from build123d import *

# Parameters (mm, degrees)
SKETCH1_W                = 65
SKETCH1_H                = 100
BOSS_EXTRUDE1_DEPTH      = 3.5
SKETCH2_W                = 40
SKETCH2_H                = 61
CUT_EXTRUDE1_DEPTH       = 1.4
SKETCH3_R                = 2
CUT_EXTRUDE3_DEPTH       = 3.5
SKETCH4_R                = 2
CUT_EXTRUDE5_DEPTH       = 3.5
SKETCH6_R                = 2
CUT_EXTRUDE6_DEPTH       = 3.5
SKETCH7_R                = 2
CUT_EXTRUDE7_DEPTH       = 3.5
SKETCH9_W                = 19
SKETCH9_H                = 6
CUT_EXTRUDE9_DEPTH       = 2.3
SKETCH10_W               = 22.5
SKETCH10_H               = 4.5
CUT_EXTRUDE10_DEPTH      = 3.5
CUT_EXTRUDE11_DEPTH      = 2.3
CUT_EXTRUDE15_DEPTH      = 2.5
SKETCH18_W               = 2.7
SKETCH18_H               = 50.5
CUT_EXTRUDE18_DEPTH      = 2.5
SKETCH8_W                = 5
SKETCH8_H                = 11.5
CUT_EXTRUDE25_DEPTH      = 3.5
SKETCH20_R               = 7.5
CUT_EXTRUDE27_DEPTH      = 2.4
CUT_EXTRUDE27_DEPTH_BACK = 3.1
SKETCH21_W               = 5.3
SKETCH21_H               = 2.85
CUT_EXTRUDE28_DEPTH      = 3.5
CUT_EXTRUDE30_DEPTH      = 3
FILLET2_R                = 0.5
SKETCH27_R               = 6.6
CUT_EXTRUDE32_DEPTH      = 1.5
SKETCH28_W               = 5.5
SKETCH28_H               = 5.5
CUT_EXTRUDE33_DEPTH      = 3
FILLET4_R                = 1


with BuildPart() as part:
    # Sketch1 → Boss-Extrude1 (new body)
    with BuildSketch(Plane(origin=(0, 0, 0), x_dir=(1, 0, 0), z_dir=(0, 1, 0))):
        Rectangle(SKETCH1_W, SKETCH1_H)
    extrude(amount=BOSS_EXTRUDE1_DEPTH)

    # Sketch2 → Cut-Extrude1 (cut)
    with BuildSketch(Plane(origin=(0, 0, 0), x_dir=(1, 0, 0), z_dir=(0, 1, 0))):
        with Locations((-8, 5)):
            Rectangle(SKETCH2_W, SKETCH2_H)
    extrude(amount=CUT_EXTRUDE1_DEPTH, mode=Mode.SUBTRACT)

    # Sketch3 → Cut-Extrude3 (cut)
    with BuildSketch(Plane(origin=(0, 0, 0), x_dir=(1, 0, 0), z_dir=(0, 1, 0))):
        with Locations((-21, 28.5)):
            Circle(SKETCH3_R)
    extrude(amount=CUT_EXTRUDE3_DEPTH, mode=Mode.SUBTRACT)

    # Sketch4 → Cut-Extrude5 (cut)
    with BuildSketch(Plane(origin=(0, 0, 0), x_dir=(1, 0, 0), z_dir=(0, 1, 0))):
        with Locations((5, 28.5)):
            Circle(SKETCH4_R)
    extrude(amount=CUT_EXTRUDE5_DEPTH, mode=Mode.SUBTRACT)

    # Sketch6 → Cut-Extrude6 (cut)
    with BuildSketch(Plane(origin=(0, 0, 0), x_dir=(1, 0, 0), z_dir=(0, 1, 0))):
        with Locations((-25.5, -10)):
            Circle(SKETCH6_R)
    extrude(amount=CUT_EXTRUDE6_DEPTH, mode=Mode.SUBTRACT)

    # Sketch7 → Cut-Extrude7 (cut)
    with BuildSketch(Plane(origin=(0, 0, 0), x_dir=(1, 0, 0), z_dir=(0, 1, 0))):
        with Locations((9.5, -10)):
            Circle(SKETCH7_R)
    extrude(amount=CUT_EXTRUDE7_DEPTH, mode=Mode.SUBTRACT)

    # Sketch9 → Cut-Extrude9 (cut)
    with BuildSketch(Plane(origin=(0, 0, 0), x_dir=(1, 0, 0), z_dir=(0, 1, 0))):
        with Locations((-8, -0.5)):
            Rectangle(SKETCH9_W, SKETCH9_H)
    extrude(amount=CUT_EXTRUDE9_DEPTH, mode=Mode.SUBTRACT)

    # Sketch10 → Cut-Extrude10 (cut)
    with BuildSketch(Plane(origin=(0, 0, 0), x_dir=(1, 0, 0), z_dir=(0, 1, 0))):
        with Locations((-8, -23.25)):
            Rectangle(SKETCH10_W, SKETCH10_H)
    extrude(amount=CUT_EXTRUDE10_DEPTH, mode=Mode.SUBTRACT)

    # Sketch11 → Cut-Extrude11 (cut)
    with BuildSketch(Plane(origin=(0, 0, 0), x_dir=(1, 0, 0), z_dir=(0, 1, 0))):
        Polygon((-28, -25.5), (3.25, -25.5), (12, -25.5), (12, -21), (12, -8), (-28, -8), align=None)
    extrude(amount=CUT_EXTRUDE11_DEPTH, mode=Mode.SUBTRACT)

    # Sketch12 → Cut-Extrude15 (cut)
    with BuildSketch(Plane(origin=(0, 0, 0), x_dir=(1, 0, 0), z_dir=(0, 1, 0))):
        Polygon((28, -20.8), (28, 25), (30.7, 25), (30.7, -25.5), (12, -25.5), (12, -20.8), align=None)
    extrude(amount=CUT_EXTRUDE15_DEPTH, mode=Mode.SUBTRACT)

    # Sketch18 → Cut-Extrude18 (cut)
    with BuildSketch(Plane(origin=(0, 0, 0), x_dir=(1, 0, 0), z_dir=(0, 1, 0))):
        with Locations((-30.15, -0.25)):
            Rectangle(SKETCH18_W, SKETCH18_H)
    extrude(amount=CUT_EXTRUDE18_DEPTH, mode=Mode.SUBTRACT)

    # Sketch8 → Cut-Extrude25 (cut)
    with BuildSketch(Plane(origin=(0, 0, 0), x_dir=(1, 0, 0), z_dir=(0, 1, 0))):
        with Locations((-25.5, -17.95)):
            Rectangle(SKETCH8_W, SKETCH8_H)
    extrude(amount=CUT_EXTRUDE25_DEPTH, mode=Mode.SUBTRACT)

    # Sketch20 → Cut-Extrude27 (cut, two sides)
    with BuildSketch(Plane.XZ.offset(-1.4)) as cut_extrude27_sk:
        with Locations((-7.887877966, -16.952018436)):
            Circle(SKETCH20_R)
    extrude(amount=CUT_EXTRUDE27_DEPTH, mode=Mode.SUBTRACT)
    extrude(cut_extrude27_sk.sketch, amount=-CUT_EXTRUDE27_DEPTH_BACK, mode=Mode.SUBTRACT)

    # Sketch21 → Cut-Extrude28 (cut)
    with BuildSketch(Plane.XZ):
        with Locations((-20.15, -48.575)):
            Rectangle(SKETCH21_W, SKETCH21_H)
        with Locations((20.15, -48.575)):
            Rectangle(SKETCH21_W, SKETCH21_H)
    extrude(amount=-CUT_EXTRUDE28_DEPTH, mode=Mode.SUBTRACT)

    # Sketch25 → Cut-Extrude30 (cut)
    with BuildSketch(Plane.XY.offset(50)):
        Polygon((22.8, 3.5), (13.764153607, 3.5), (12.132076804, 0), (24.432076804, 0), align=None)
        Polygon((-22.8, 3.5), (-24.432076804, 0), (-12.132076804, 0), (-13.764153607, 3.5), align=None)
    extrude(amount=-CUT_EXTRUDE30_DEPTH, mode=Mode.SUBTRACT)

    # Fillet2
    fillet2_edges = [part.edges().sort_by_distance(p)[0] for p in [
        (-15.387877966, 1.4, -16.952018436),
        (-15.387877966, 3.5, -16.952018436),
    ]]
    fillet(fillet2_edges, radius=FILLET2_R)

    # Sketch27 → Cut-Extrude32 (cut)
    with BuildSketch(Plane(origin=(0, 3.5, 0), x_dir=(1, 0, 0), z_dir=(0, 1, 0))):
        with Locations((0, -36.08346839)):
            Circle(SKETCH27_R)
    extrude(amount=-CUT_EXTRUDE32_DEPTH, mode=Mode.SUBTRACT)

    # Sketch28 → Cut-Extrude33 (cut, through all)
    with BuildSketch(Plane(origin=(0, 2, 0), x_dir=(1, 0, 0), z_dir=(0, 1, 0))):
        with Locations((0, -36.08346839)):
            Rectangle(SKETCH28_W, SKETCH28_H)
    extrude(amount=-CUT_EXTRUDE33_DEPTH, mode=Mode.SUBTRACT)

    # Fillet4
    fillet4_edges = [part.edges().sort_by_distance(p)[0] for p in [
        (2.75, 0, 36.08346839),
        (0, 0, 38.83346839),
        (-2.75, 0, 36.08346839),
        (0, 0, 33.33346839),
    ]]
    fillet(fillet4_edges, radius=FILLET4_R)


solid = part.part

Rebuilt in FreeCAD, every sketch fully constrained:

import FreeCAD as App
import Part
import Sketcher
Q = App.Units.Quantity


def edges_at(feature, points):
    """Names of the edges that pass closest to the given points."""
    edges = feature.Shape.Edges
    near = lambda p: min(range(len(edges)), key=lambda i: edges[i].distToShape(Part.Vertex(*p))[0])
    return sorted({f"Edge{near(p) + 1}" for p in points})

doc = App.newDocument("Part")
params = doc.addObject("Spreadsheet::Sheet", "Params")
for row, (alias, value) in enumerate([
    ("sketch1_width", "65 mm"),
    ("sketch1_height", "100 mm"),
    ("pad1_length", "3.5 mm"),
    ("sketch2_width", "40 mm"),
    ("sketch2_height", "61 mm"),
    ("pocket1_length", "1.4 mm"),
    ("sketch3_diameter", "4 mm"),
    ("pocket2_length", "3.5 mm"),
    ("sketch4_diameter", "4 mm"),
    ("pocket3_length", "3.5 mm"),
    ("sketch5_diameter", "4 mm"),
    ("pocket4_length", "3.5 mm"),
    ("sketch6_diameter", "4 mm"),
    ("pocket5_length", "3.5 mm"),
    ("sketch7_width", "19 mm"),
    ("sketch7_height", "6 mm"),
    ("pocket6_length", "2.3 mm"),
    ("sketch8_width", "22.5 mm"),
    ("sketch8_height", "4.5 mm"),
    ("pocket7_length", "3.5 mm"),
    ("sketch9_width", "40 mm"),
    ("sketch9_height", "17.5 mm"),
    ("pocket8_length", "2.3 mm"),
    ("sketch10_width", "16 mm"),
    ("sketch10_width2", "18.7 mm"),
    ("sketch10_height", "45.8 mm"),
    ("sketch10_height2", "4.7 mm"),
    ("pocket9_length", "2.5 mm"),
    ("sketch11_width", "2.7 mm"),
    ("sketch11_height", "50.5 mm"),
    ("pocket10_length", "2.5 mm"),
    ("sketch12_width", "5 mm"),
    ("sketch12_height", "11.5 mm"),
    ("pocket11_length", "3.5 mm"),
    ("sketch13_diameter", "15 mm"),
    ("sketch14_width", "5.3 mm"),
    ("sketch14_height", "2.85 mm"),
    ("pocket13_length", "3.5 mm"),
    ("sketch15_width", "12.3 mm"),
    ("pocket14_length", "3 mm"),
    ("fillet_radius", "0.5 mm"),
    ("sketch16_diameter", "13.2 mm"),
    ("pocket15_length", "1.5 mm"),
    ("sketch17_width", "5.5 mm"),
    ("fillet2_radius", "1 mm"),
], start=1):
    params.set(f"A{row}", alias)
    params.set(f"B{row}", "=" + value)
    params.setAlias(f"B{row}", alias)

body = doc.addObject("PartDesign::Body", "Body")

sketch1 = doc.addObject("Sketcher::SketchObject", "Sketch")
body.addObject(sketch1)
sketch1.AttachmentSupport = (doc.XZ_Plane, [""])
sketch1.MapMode = "FlatFace"
sketch1.addGeometry([
    Part.LineSegment(App.Vector(-32.5, -50, 0), App.Vector(-32.5, 50, 0)),
    Part.LineSegment(App.Vector(-32.5, 50, 0), App.Vector(32.5, 50, 0)),
    Part.LineSegment(App.Vector(32.5, 50, 0), App.Vector(32.5, -50, 0)),
    Part.LineSegment(App.Vector(32.5, -50, 0), App.Vector(-32.5, -50, 0)),
], False)
sketch1.addConstraint([
    Sketcher.Constraint("Coincident", 0, 2, 1, 1),
    Sketcher.Constraint("Coincident", 1, 2, 2, 1),
    Sketcher.Constraint("Coincident", 2, 2, 3, 1),
    Sketcher.Constraint("Coincident", 3, 2, 0, 1),
    Sketcher.Constraint("Vertical", 0),
    Sketcher.Constraint("Horizontal", 1),
    Sketcher.Constraint("Vertical", 2),
    Sketcher.Constraint("Horizontal", 3),
    Sketcher.Constraint("Symmetric", 0, 2, 2, 2, -1, 1),
    Sketcher.Constraint("DistanceX", 1, 1, 1, 2, 65.0),
    Sketcher.Constraint("DistanceY", 0, 1, 0, 2, 100.0),
])
sketch1.setExpression("Constraints[9]", "Params.sketch1_width")
sketch1.setExpression("Constraints[10]", "Params.sketch1_height")
pad1 = doc.addObject("PartDesign::Pad", "Pad")
body.addObject(pad1)
pad1.Profile = sketch1
pad1.setExpression("Length", "Params.pad1_length")
pad1.Reversed = True

sketch2 = doc.addObject("Sketcher::SketchObject", "Sketch001")
body.addObject(sketch2)
sketch2.AttachmentSupport = (doc.XZ_Plane, [""])
sketch2.MapMode = "FlatFace"
sketch2.addGeometry([
    Part.LineSegment(App.Vector(-28, -35.5, 0), App.Vector(-28, 25.5, 0)),
    Part.LineSegment(App.Vector(-28, 25.5, 0), App.Vector(12, 25.5, 0)),
    Part.LineSegment(App.Vector(12, 25.5, 0), App.Vector(12, -35.5, 0)),
    Part.LineSegment(App.Vector(12, -35.5, 0), App.Vector(-28, -35.5, 0)),
], False)
sketch2.addConstraint([
    Sketcher.Constraint("Coincident", 0, 2, 1, 1),
    Sketcher.Constraint("Coincident", 1, 2, 2, 1),
    Sketcher.Constraint("Coincident", 2, 2, 3, 1),
    Sketcher.Constraint("Coincident", 3, 2, 0, 1),
    Sketcher.Constraint("Vertical", 0),
    Sketcher.Constraint("Horizontal", 1),
    Sketcher.Constraint("Vertical", 2),
    Sketcher.Constraint("Horizontal", 3),
    Sketcher.Constraint("DistanceX", 1, 1, 1, 2, 40.0),
    Sketcher.Constraint("DistanceY", 0, 1, 0, 2, 61.0),
    Sketcher.Constraint("DistanceX", 0, 2, -1, 1, 28.0),
    Sketcher.Constraint("DistanceY", -1, 1, 0, 2, 25.5),
])
sketch2.setExpression("Constraints[8]", "Params.sketch2_width")
sketch2.setExpression("Constraints[9]", "Params.sketch2_height")
pocket1 = doc.addObject("PartDesign::Pocket", "Pocket")
body.addObject(pocket1)
pocket1.Profile = sketch2
pocket1.setExpression("Length", "Params.pocket1_length")

sketch3 = doc.addObject("Sketcher::SketchObject", "Sketch002")
body.addObject(sketch3)
sketch3.AttachmentSupport = (doc.XZ_Plane, [""])
sketch3.MapMode = "FlatFace"
sketch3.addGeometry(Part.Circle(App.Vector(-21, -28.5, 0), App.Vector(0, 0, 1), 2), False)
sketch3.addConstraint([
    Sketcher.Constraint("Diameter", 0, 4.0),
    Sketcher.Constraint("DistanceX", 0, 3, -1, 1, 21.0),
    Sketcher.Constraint("DistanceY", 0, 3, -1, 1, 28.5),
])
sketch3.setExpression("Constraints[0]", "Params.sketch3_diameter")
pocket2 = doc.addObject("PartDesign::Pocket", "Pocket001")
body.addObject(pocket2)
pocket2.Profile = sketch3
pocket2.setExpression("Length", "Params.pocket2_length")

sketch4 = doc.addObject("Sketcher::SketchObject", "Sketch003")
body.addObject(sketch4)
sketch4.AttachmentSupport = (doc.XZ_Plane, [""])
sketch4.MapMode = "FlatFace"
sketch4.addGeometry(Part.Circle(App.Vector(5, -28.5, 0), App.Vector(0, 0, 1), 2), False)
sketch4.addConstraint([
    Sketcher.Constraint("Diameter", 0, 4.0),
    Sketcher.Constraint("DistanceX", -1, 1, 0, 3, 5.0),
    Sketcher.Constraint("DistanceY", 0, 3, -1, 1, 28.5),
])
sketch4.setExpression("Constraints[0]", "Params.sketch4_diameter")
pocket3 = doc.addObject("PartDesign::Pocket", "Pocket002")
body.addObject(pocket3)
pocket3.Profile = sketch4
pocket3.setExpression("Length", "Params.pocket3_length")

sketch5 = doc.addObject("Sketcher::SketchObject", "Sketch004")
body.addObject(sketch5)
sketch5.AttachmentSupport = (doc.XZ_Plane, [""])
sketch5.MapMode = "FlatFace"
sketch5.addGeometry(Part.Circle(App.Vector(-25.5, 10, 0), App.Vector(0, 0, 1), 2), False)
sketch5.addConstraint([
    Sketcher.Constraint("Diameter", 0, 4.0),
    Sketcher.Constraint("DistanceY", -1, 1, 0, 3, 10.0),
    Sketcher.Constraint("DistanceX", 0, 3, -1, 1, 25.5),
])
sketch5.setExpression("Constraints[0]", "Params.sketch5_diameter")
pocket4 = doc.addObject("PartDesign::Pocket", "Pocket003")
body.addObject(pocket4)
pocket4.Profile = sketch5
pocket4.setExpression("Length", "Params.pocket4_length")

sketch6 = doc.addObject("Sketcher::SketchObject", "Sketch005")
body.addObject(sketch6)
sketch6.AttachmentSupport = (doc.XZ_Plane, [""])
sketch6.MapMode = "FlatFace"
sketch6.addGeometry(Part.Circle(App.Vector(9.5, 10, 0), App.Vector(0, 0, 1), 2), False)
sketch6.addConstraint([
    Sketcher.Constraint("Diameter", 0, 4.0),
    Sketcher.Constraint("DistanceY", -1, 1, 0, 3, 10.0),
    Sketcher.Constraint("DistanceX", -1, 1, 0, 3, 9.5),
])
sketch6.setExpression("Constraints[0]", "Params.sketch6_diameter")
pocket5 = doc.addObject("PartDesign::Pocket", "Pocket004")
body.addObject(pocket5)
pocket5.Profile = sketch6
pocket5.setExpression("Length", "Params.pocket5_length")

sketch7 = doc.addObject("Sketcher::SketchObject", "Sketch006")
body.addObject(sketch7)
sketch7.AttachmentSupport = (doc.XZ_Plane, [""])
sketch7.MapMode = "FlatFace"
sketch7.addGeometry([
    Part.LineSegment(App.Vector(-17.5, -2.5, 0), App.Vector(-17.5, 3.5, 0)),
    Part.LineSegment(App.Vector(-17.5, 3.5, 0), App.Vector(1.5, 3.5, 0)),
    Part.LineSegment(App.Vector(1.5, 3.5, 0), App.Vector(1.5, -2.5, 0)),
    Part.LineSegment(App.Vector(1.5, -2.5, 0), App.Vector(-17.5, -2.5, 0)),
], False)
sketch7.addConstraint([
    Sketcher.Constraint("Coincident", 0, 2, 1, 1),
    Sketcher.Constraint("Coincident", 1, 2, 2, 1),
    Sketcher.Constraint("Coincident", 2, 2, 3, 1),
    Sketcher.Constraint("Coincident", 3, 2, 0, 1),
    Sketcher.Constraint("Vertical", 0),
    Sketcher.Constraint("Horizontal", 1),
    Sketcher.Constraint("Vertical", 2),
    Sketcher.Constraint("Horizontal", 3),
    Sketcher.Constraint("DistanceX", 1, 1, 1, 2, 19.0),
    Sketcher.Constraint("DistanceY", 0, 1, 0, 2, 6.0),
    Sketcher.Constraint("DistanceX", 0, 2, -1, 1, 17.5),
    Sketcher.Constraint("DistanceY", -1, 1, 0, 2, 3.5),
])
sketch7.setExpression("Constraints[8]", "Params.sketch7_width")
sketch7.setExpression("Constraints[9]", "Params.sketch7_height")
pocket6 = doc.addObject("PartDesign::Pocket", "Pocket005")
body.addObject(pocket6)
pocket6.Profile = sketch7
pocket6.setExpression("Length", "Params.pocket6_length")

sketch8 = doc.addObject("Sketcher::SketchObject", "Sketch007")
body.addObject(sketch8)
sketch8.AttachmentSupport = (doc.XZ_Plane, [""])
sketch8.MapMode = "FlatFace"
sketch8.addGeometry([
    Part.LineSegment(App.Vector(-19.25, 21, 0), App.Vector(-19.25, 25.5, 0)),
    Part.LineSegment(App.Vector(-19.25, 25.5, 0), App.Vector(3.25, 25.5, 0)),
    Part.LineSegment(App.Vector(3.25, 25.5, 0), App.Vector(3.25, 21, 0)),
    Part.LineSegment(App.Vector(3.25, 21, 0), App.Vector(-19.25, 21, 0)),
], False)
sketch8.addConstraint([
    Sketcher.Constraint("Coincident", 0, 2, 1, 1),
    Sketcher.Constraint("Coincident", 1, 2, 2, 1),
    Sketcher.Constraint("Coincident", 2, 2, 3, 1),
    Sketcher.Constraint("Coincident", 3, 2, 0, 1),
    Sketcher.Constraint("Vertical", 0),
    Sketcher.Constraint("Horizontal", 1),
    Sketcher.Constraint("Vertical", 2),
    Sketcher.Constraint("Horizontal", 3),
    Sketcher.Constraint("DistanceX", 1, 1, 1, 2, 22.5),
    Sketcher.Constraint("DistanceY", 0, 1, 0, 2, 4.5),
    Sketcher.Constraint("DistanceY", -1, 1, 2, 2, 21.0),
    Sketcher.Constraint("DistanceX", 0, 2, -1, 1, 19.25),
])
sketch8.setExpression("Constraints[8]", "Params.sketch8_width")
sketch8.setExpression("Constraints[9]", "Params.sketch8_height")
pocket7 = doc.addObject("PartDesign::Pocket", "Pocket006")
body.addObject(pocket7)
pocket7.Profile = sketch8
pocket7.setExpression("Length", "Params.pocket7_length")

sketch9 = doc.addObject("Sketcher::SketchObject", "Sketch008")
body.addObject(sketch9)
sketch9.AttachmentSupport = (doc.XZ_Plane, [""])
sketch9.MapMode = "FlatFace"
sketch9.addGeometry([
    Part.LineSegment(App.Vector(-28, 25.5, 0), App.Vector(12, 25.5, 0)),
    Part.LineSegment(App.Vector(12, 25.5, 0), App.Vector(12, 8, 0)),
    Part.LineSegment(App.Vector(12, 8, 0), App.Vector(-28, 8, 0)),
    Part.LineSegment(App.Vector(-28, 8, 0), App.Vector(-28, 25.5, 0)),
], False)
sketch9.addConstraint([
    Sketcher.Constraint("Coincident", 0, 2, 1, 1),
    Sketcher.Constraint("Coincident", 1, 2, 2, 1),
    Sketcher.Constraint("Coincident", 2, 2, 3, 1),
    Sketcher.Constraint("Coincident", 3, 2, 0, 1),
    Sketcher.Constraint("Horizontal", 0),
    Sketcher.Constraint("Vertical", 1),
    Sketcher.Constraint("Horizontal", 2),
    Sketcher.Constraint("Vertical", 3),
    Sketcher.Constraint("DistanceX", 0, 1, 0, 2, 40.0),
    Sketcher.Constraint("DistanceY", 1, 2, 1, 1, 17.5),
    Sketcher.Constraint("DistanceX", -1, 1, 0, 2, 12.0),
    Sketcher.Constraint("DistanceY", -1, 1, 1, 2, 8.0),
])
sketch9.setExpression("Constraints[8]", "Params.sketch9_width")
sketch9.setExpression("Constraints[9]", "Params.sketch9_height")
pocket8 = doc.addObject("PartDesign::Pocket", "Pocket007")
body.addObject(pocket8)
pocket8.Profile = sketch9
pocket8.setExpression("Length", "Params.pocket8_length")

sketch10 = doc.addObject("Sketcher::SketchObject", "Sketch009")
body.addObject(sketch10)
sketch10.AttachmentSupport = (doc.XZ_Plane, [""])
sketch10.MapMode = "FlatFace"
sketch10.addGeometry([
    Part.LineSegment(App.Vector(28, -25, 0), App.Vector(28, 20.8, 0)),
    Part.LineSegment(App.Vector(28, 20.8, 0), App.Vector(12, 20.8, 0)),
    Part.LineSegment(App.Vector(12, 20.8, 0), App.Vector(12, 25.5, 0)),
    Part.LineSegment(App.Vector(12, 25.5, 0), App.Vector(30.7, 25.5, 0)),
    Part.LineSegment(App.Vector(30.7, 25.5, 0), App.Vector(30.7, -25, 0)),
    Part.LineSegment(App.Vector(30.7, -25, 0), App.Vector(28, -25, 0)),
], False)
sketch10.addConstraint([
    Sketcher.Constraint("Coincident", 0, 2, 1, 1),
    Sketcher.Constraint("Coincident", 1, 2, 2, 1),
    Sketcher.Constraint("Coincident", 2, 2, 3, 1),
    Sketcher.Constraint("Coincident", 3, 2, 4, 1),
    Sketcher.Constraint("Coincident", 4, 2, 5, 1),
    Sketcher.Constraint("Coincident", 5, 2, 0, 1),
    Sketcher.Constraint("Vertical", 0),
    Sketcher.Constraint("Horizontal", 1),
    Sketcher.Constraint("Vertical", 2),
    Sketcher.Constraint("Horizontal", 3),
    Sketcher.Constraint("Vertical", 4),
    Sketcher.Constraint("Horizontal", 5),
    Sketcher.Constraint("DistanceX", 1, 2, 1, 1, 16.0),
    Sketcher.Constraint("DistanceX", 3, 1, 3, 2, 18.7),
    Sketcher.Constraint("DistanceY", 0, 1, 0, 2, 45.8),
    Sketcher.Constraint("DistanceY", 2, 1, 2, 2, 4.7),
    Sketcher.Constraint("DistanceX", -1, 1, 0, 2, 28.0),
    Sketcher.Constraint("DistanceY", 4, 2, -1, 1, 25.0),
])
sketch10.setExpression("Constraints[12]", "Params.sketch10_width")
sketch10.setExpression("Constraints[13]", "Params.sketch10_width2")
sketch10.setExpression("Constraints[14]", "Params.sketch10_height")
sketch10.setExpression("Constraints[15]", "Params.sketch10_height2")
pocket9 = doc.addObject("PartDesign::Pocket", "Pocket008")
body.addObject(pocket9)
pocket9.Profile = sketch10
pocket9.setExpression("Length", "Params.pocket9_length")

sketch11 = doc.addObject("Sketcher::SketchObject", "Sketch010")
body.addObject(sketch11)
sketch11.AttachmentSupport = (doc.XZ_Plane, [""])
sketch11.MapMode = "FlatFace"
sketch11.addGeometry([
    Part.LineSegment(App.Vector(-31.5, -25, 0), App.Vector(-31.5, 25.5, 0)),
    Part.LineSegment(App.Vector(-31.5, 25.5, 0), App.Vector(-28.8, 25.5, 0)),
    Part.LineSegment(App.Vector(-28.8, 25.5, 0), App.Vector(-28.8, -25, 0)),
    Part.LineSegment(App.Vector(-28.8, -25, 0), App.Vector(-31.5, -25, 0)),
], False)
sketch11.addConstraint([
    Sketcher.Constraint("Coincident", 0, 2, 1, 1),
    Sketcher.Constraint("Coincident", 1, 2, 2, 1),
    Sketcher.Constraint("Coincident", 2, 2, 3, 1),
    Sketcher.Constraint("Coincident", 3, 2, 0, 1),
    Sketcher.Constraint("Vertical", 0),
    Sketcher.Constraint("Horizontal", 1),
    Sketcher.Constraint("Vertical", 2),
    Sketcher.Constraint("Horizontal", 3),
    Sketcher.Constraint("DistanceX", 1, 1, 1, 2, 2.7),
    Sketcher.Constraint("DistanceY", 0, 1, 0, 2, 50.5),
    Sketcher.Constraint("DistanceY", 2, 2, -1, 1, 25.0),
    Sketcher.Constraint("DistanceX", 0, 2, -1, 1, 31.5),
])
sketch11.setExpression("Constraints[8]", "Params.sketch11_width")
sketch11.setExpression("Constraints[9]", "Params.sketch11_height")
pocket10 = doc.addObject("PartDesign::Pocket", "Pocket009")
body.addObject(pocket10)
pocket10.Profile = sketch11
pocket10.setExpression("Length", "Params.pocket10_length")

sketch12 = doc.addObject("Sketcher::SketchObject", "Sketch011")
body.addObject(sketch12)
sketch12.AttachmentSupport = (doc.XZ_Plane, [""])
sketch12.MapMode = "FlatFace"
sketch12.addGeometry([
    Part.LineSegment(App.Vector(-28, 12.2, 0), App.Vector(-28, 23.7, 0)),
    Part.LineSegment(App.Vector(-28, 23.7, 0), App.Vector(-23, 23.7, 0)),
    Part.LineSegment(App.Vector(-23, 23.7, 0), App.Vector(-23, 12.2, 0)),
    Part.LineSegment(App.Vector(-23, 12.2, 0), App.Vector(-28, 12.2, 0)),
], False)
sketch12.addConstraint([
    Sketcher.Constraint("Coincident", 0, 2, 1, 1),
    Sketcher.Constraint("Coincident", 1, 2, 2, 1),
    Sketcher.Constraint("Coincident", 2, 2, 3, 1),
    Sketcher.Constraint("Coincident", 3, 2, 0, 1),
    Sketcher.Constraint("Vertical", 0),
    Sketcher.Constraint("Horizontal", 1),
    Sketcher.Constraint("Vertical", 2),
    Sketcher.Constraint("Horizontal", 3),
    Sketcher.Constraint("DistanceX", 1, 1, 1, 2, 5.0),
    Sketcher.Constraint("DistanceY", 0, 1, 0, 2, 11.5),
    Sketcher.Constraint("DistanceX", 0, 2, -1, 1, 28.0),
    Sketcher.Constraint("DistanceY", -1, 1, 0, 2, 23.7),
])
sketch12.setExpression("Constraints[8]", "Params.sketch12_width")
sketch12.setExpression("Constraints[9]", "Params.sketch12_height")
pocket11 = doc.addObject("PartDesign::Pocket", "Pocket010")
body.addObject(pocket11)
pocket11.Profile = sketch12
pocket11.setExpression("Length", "Params.pocket11_length")

sketch13 = doc.addObject("Sketcher::SketchObject", "Sketch012")
body.addObject(sketch13)
sketch13.AttachmentSupport = (doc.XZ_Plane, [""])
sketch13.MapMode = "FlatFace"
sketch13.AttachmentOffset = App.Placement(App.Vector(0, 0, -1.4), App.Rotation())
sketch13.addGeometry(Part.Circle(App.Vector(-7.887878, -16.952018, 0), App.Vector(0, 0, 1), 7.5), False)
sketch13.addConstraint([
    Sketcher.Constraint("Diameter", 0, 15.0),
    Sketcher.Constraint("DistanceY", 0, 3, -1, 1, 16.952018),
    Sketcher.Constraint("DistanceX", 0, 3, -1, 1, 7.887878),
])
sketch13.setExpression("Constraints[0]", "Params.sketch13_diameter")
pocket12 = doc.addObject("PartDesign::Pocket", "Pocket011")
body.addObject(pocket12)
pocket12.Profile = sketch13
pocket12.Type = "ThroughAll"
pocket12.Midplane = True

sketch14 = doc.addObject("Sketcher::SketchObject", "Sketch013")
body.addObject(sketch14)
sketch14.AttachmentSupport = (doc.XZ_Plane, [""])
sketch14.MapMode = "FlatFace"
sketch14.addGeometry([
    Part.LineSegment(App.Vector(-22.8, -47.15, 0), App.Vector(-22.8, -50, 0)),
    Part.LineSegment(App.Vector(-22.8, -50, 0), App.Vector(-17.5, -50, 0)),
    Part.LineSegment(App.Vector(-17.5, -50, 0), App.Vector(-17.5, -47.15, 0)),
    Part.LineSegment(App.Vector(-17.5, -47.15, 0), App.Vector(-22.8, -47.15, 0)),
    Part.LineSegment(App.Vector(17.5, -47.15, 0), App.Vector(17.5, -50, 0)),
    Part.LineSegment(App.Vector(17.5, -50, 0), App.Vector(22.8, -50, 0)),
    Part.LineSegment(App.Vector(22.8, -50, 0), App.Vector(22.8, -47.15, 0)),
    Part.LineSegment(App.Vector(22.8, -47.15, 0), App.Vector(17.5, -47.15, 0)),
], False)
sketch14.addConstraint([
    Sketcher.Constraint("Coincident", 0, 2, 1, 1),
    Sketcher.Constraint("Coincident", 1, 2, 2, 1),
    Sketcher.Constraint("Coincident", 2, 2, 3, 1),
    Sketcher.Constraint("Coincident", 3, 2, 0, 1),
    Sketcher.Constraint("Coincident", 4, 2, 5, 1),
    Sketcher.Constraint("Coincident", 5, 2, 6, 1),
    Sketcher.Constraint("Coincident", 6, 2, 7, 1),
    Sketcher.Constraint("Coincident", 7, 2, 4, 1),
    Sketcher.Constraint("Vertical", 0),
    Sketcher.Constraint("Horizontal", 1),
    Sketcher.Constraint("Vertical", 2),
    Sketcher.Constraint("Horizontal", 3),
    Sketcher.Constraint("Vertical", 4),
    Sketcher.Constraint("Horizontal", 5),
    Sketcher.Constraint("Vertical", 6),
    Sketcher.Constraint("Horizontal", 7),
    Sketcher.Constraint("Symmetric", 1, 2, 4, 2, -2),
    Sketcher.Constraint("Symmetric", 3, 2, 6, 2, -2),
    Sketcher.Constraint("DistanceX", 1, 1, 1, 2, 5.3),
    Sketcher.Constraint("DistanceY", 0, 2, -1, 1, 50.0),
    Sketcher.Constraint("DistanceX", 1, 2, 4, 2, 35.0),
    Sketcher.Constraint("DistanceY", 0, 2, 0, 1, 2.85),
])
sketch14.setExpression("Constraints[18]", "Params.sketch14_width")
sketch14.setExpression("Constraints[21]", "Params.sketch14_height")
pocket13 = doc.addObject("PartDesign::Pocket", "Pocket012")
body.addObject(pocket13)
pocket13.Profile = sketch14
pocket13.setExpression("Length", "Params.pocket13_length")

sketch15 = doc.addObject("Sketcher::SketchObject", "Sketch014")
body.addObject(sketch15)
sketch15.AttachmentSupport = (doc.XY_Plane, [""])
sketch15.MapMode = "FlatFace"
sketch15.AttachmentOffset = App.Placement(App.Vector(0, 0, 50), App.Rotation())
sketch15.addGeometry([
    Part.LineSegment(App.Vector(22.8, 3.5, 0), App.Vector(13.764154, 3.5, 0)),
    Part.LineSegment(App.Vector(13.764154, 3.5, 0), App.Vector(12.132077, 0, 0)),
    Part.LineSegment(App.Vector(12.132077, 0, 0), App.Vector(24.432077, 0, 0)),
    Part.LineSegment(App.Vector(24.432077, 0, 0), App.Vector(22.8, 3.5, 0)),
    Part.LineSegment(App.Vector(-22.8, 3.5, 0), App.Vector(-24.432077, 0, 0)),
    Part.LineSegment(App.Vector(-24.432077, 0, 0), App.Vector(-12.132077, 0, 0)),
    Part.LineSegment(App.Vector(-12.132077, 0, 0), App.Vector(-13.764154, 3.5, 0)),
    Part.LineSegment(App.Vector(-13.764154, 3.5, 0), App.Vector(-22.8, 3.5, 0)),
], False)
sketch15.addConstraint([
    Sketcher.Constraint("Coincident", 0, 2, 1, 1),
    Sketcher.Constraint("Coincident", 1, 2, 2, 1),
    Sketcher.Constraint("Coincident", 2, 2, 3, 1),
    Sketcher.Constraint("Coincident", 3, 2, 0, 1),
    Sketcher.Constraint("Coincident", 4, 2, 5, 1),
    Sketcher.Constraint("Coincident", 5, 2, 6, 1),
    Sketcher.Constraint("Coincident", 6, 2, 7, 1),
    Sketcher.Constraint("Coincident", 7, 2, 4, 1),
    Sketcher.Constraint("Horizontal", 0),
    Sketcher.Constraint("Horizontal", 2),
    Sketcher.Constraint("Horizontal", 5),
    Sketcher.Constraint("Horizontal", 7),
    Sketcher.Constraint("Symmetric", 2, 2, 4, 2, -1, 1),
    Sketcher.Constraint("Symmetric", 1, 2, 5, 2, -2),
    Sketcher.Constraint("Symmetric", 0, 2, 6, 2, -2),
    Sketcher.Constraint("Parallel", 1, 4),
    Sketcher.Constraint("Parallel", 3, 6),
    Sketcher.Constraint("Angle", 1, Q("-115 deg")),
    Sketcher.Constraint("DistanceX", 2, 1, 2, 2, 12.3),
    Sketcher.Constraint("DistanceY", -1, 1, 0, 2, 3.5),
    Sketcher.Constraint("DistanceX", -1, 1, 3, 2, 22.8),
])
sketch15.setExpression("Constraints[18]", "Params.sketch15_width")
pocket14 = doc.addObject("PartDesign::Pocket", "Pocket013")
body.addObject(pocket14)
pocket14.Profile = sketch15
pocket14.setExpression("Length", "Params.pocket14_length")
doc.recompute()

fillet = doc.addObject("PartDesign::Fillet", "Fillet")
body.addObject(fillet)
fillet.Base = (pocket14, edges_at(pocket14, [(-15.388, 1.4, -16.952), (-15.388, 3.5, -16.952)]))
fillet.setExpression("Radius", "Params.fillet_radius")

sketch16 = doc.addObject("Sketcher::SketchObject", "Sketch015")
body.addObject(sketch16)
sketch16.AttachmentSupport = (doc.XZ_Plane, [""])
sketch16.MapMode = "FlatFace"
sketch16.AttachmentOffset = App.Placement(App.Vector(0, 0, -3.5), App.Rotation())
sketch16.addGeometry(Part.Circle(App.Vector(0, 36.083468, 0), App.Vector(0, 0, 1), 6.6), False)
sketch16.addConstraint([
    Sketcher.Constraint("PointOnObject", 0, 3, -2),
    Sketcher.Constraint("Diameter", 0, 13.2),
    Sketcher.Constraint("DistanceY", -1, 1, 0, 3, 36.083468),
])
sketch16.setExpression("Constraints[1]", "Params.sketch16_diameter")
pocket15 = doc.addObject("PartDesign::Pocket", "Pocket014")
body.addObject(pocket15)
pocket15.Profile = sketch16
pocket15.setExpression("Length", "Params.pocket15_length")
pocket15.Reversed = True

sketch17 = doc.addObject("Sketcher::SketchObject", "Sketch016")
body.addObject(sketch17)
sketch17.AttachmentSupport = (doc.XZ_Plane, [""])
sketch17.MapMode = "FlatFace"
sketch17.AttachmentOffset = App.Placement(App.Vector(0, 0, -2), App.Rotation())
sketch17.addGeometry([
    Part.LineSegment(App.Vector(-2.75, 33.333468, 0), App.Vector(-2.75, 38.833468, 0)),
    Part.LineSegment(App.Vector(-2.75, 38.833468, 0), App.Vector(2.75, 38.833468, 0)),
    Part.LineSegment(App.Vector(2.75, 38.833468, 0), App.Vector(2.75, 33.333468, 0)),
    Part.LineSegment(App.Vector(2.75, 33.333468, 0), App.Vector(-2.75, 33.333468, 0)),
], False)
sketch17.addConstraint([
    Sketcher.Constraint("Coincident", 0, 2, 1, 1),
    Sketcher.Constraint("Coincident", 1, 2, 2, 1),
    Sketcher.Constraint("Coincident", 2, 2, 3, 1),
    Sketcher.Constraint("Coincident", 3, 2, 0, 1),
    Sketcher.Constraint("Vertical", 0),
    Sketcher.Constraint("Horizontal", 1),
    Sketcher.Constraint("Vertical", 2),
    Sketcher.Constraint("Horizontal", 3),
    Sketcher.Constraint("Equal", 3, 0),
    Sketcher.Constraint("DistanceX", 1, 1, 1, 2, 5.5),
    Sketcher.Constraint("DistanceX", 0, 2, -1, 1, 2.75),
    Sketcher.Constraint("DistanceY", -1, 1, 0, 2, 38.833468),
])
sketch17.setExpression("Constraints[9]", "Params.sketch17_width")
pocket16 = doc.addObject("PartDesign::Pocket", "Pocket015")
body.addObject(pocket16)
pocket16.Profile = sketch17
pocket16.Type = "ThroughAll"
pocket16.Reversed = True
doc.recompute()

fillet2 = doc.addObject("PartDesign::Fillet", "Fillet001")
body.addObject(fillet2)
fillet2.Base = (pocket16, edges_at(pocket16, [
    (2.75, 0, 36.083),
    (0, 0, 38.833),
    (-2.75, 0, 36.083),
    (0, 0, 33.333),
]))
fillet2.setExpression("Radius", "Params.fillet2_radius")

doc.recompute()
